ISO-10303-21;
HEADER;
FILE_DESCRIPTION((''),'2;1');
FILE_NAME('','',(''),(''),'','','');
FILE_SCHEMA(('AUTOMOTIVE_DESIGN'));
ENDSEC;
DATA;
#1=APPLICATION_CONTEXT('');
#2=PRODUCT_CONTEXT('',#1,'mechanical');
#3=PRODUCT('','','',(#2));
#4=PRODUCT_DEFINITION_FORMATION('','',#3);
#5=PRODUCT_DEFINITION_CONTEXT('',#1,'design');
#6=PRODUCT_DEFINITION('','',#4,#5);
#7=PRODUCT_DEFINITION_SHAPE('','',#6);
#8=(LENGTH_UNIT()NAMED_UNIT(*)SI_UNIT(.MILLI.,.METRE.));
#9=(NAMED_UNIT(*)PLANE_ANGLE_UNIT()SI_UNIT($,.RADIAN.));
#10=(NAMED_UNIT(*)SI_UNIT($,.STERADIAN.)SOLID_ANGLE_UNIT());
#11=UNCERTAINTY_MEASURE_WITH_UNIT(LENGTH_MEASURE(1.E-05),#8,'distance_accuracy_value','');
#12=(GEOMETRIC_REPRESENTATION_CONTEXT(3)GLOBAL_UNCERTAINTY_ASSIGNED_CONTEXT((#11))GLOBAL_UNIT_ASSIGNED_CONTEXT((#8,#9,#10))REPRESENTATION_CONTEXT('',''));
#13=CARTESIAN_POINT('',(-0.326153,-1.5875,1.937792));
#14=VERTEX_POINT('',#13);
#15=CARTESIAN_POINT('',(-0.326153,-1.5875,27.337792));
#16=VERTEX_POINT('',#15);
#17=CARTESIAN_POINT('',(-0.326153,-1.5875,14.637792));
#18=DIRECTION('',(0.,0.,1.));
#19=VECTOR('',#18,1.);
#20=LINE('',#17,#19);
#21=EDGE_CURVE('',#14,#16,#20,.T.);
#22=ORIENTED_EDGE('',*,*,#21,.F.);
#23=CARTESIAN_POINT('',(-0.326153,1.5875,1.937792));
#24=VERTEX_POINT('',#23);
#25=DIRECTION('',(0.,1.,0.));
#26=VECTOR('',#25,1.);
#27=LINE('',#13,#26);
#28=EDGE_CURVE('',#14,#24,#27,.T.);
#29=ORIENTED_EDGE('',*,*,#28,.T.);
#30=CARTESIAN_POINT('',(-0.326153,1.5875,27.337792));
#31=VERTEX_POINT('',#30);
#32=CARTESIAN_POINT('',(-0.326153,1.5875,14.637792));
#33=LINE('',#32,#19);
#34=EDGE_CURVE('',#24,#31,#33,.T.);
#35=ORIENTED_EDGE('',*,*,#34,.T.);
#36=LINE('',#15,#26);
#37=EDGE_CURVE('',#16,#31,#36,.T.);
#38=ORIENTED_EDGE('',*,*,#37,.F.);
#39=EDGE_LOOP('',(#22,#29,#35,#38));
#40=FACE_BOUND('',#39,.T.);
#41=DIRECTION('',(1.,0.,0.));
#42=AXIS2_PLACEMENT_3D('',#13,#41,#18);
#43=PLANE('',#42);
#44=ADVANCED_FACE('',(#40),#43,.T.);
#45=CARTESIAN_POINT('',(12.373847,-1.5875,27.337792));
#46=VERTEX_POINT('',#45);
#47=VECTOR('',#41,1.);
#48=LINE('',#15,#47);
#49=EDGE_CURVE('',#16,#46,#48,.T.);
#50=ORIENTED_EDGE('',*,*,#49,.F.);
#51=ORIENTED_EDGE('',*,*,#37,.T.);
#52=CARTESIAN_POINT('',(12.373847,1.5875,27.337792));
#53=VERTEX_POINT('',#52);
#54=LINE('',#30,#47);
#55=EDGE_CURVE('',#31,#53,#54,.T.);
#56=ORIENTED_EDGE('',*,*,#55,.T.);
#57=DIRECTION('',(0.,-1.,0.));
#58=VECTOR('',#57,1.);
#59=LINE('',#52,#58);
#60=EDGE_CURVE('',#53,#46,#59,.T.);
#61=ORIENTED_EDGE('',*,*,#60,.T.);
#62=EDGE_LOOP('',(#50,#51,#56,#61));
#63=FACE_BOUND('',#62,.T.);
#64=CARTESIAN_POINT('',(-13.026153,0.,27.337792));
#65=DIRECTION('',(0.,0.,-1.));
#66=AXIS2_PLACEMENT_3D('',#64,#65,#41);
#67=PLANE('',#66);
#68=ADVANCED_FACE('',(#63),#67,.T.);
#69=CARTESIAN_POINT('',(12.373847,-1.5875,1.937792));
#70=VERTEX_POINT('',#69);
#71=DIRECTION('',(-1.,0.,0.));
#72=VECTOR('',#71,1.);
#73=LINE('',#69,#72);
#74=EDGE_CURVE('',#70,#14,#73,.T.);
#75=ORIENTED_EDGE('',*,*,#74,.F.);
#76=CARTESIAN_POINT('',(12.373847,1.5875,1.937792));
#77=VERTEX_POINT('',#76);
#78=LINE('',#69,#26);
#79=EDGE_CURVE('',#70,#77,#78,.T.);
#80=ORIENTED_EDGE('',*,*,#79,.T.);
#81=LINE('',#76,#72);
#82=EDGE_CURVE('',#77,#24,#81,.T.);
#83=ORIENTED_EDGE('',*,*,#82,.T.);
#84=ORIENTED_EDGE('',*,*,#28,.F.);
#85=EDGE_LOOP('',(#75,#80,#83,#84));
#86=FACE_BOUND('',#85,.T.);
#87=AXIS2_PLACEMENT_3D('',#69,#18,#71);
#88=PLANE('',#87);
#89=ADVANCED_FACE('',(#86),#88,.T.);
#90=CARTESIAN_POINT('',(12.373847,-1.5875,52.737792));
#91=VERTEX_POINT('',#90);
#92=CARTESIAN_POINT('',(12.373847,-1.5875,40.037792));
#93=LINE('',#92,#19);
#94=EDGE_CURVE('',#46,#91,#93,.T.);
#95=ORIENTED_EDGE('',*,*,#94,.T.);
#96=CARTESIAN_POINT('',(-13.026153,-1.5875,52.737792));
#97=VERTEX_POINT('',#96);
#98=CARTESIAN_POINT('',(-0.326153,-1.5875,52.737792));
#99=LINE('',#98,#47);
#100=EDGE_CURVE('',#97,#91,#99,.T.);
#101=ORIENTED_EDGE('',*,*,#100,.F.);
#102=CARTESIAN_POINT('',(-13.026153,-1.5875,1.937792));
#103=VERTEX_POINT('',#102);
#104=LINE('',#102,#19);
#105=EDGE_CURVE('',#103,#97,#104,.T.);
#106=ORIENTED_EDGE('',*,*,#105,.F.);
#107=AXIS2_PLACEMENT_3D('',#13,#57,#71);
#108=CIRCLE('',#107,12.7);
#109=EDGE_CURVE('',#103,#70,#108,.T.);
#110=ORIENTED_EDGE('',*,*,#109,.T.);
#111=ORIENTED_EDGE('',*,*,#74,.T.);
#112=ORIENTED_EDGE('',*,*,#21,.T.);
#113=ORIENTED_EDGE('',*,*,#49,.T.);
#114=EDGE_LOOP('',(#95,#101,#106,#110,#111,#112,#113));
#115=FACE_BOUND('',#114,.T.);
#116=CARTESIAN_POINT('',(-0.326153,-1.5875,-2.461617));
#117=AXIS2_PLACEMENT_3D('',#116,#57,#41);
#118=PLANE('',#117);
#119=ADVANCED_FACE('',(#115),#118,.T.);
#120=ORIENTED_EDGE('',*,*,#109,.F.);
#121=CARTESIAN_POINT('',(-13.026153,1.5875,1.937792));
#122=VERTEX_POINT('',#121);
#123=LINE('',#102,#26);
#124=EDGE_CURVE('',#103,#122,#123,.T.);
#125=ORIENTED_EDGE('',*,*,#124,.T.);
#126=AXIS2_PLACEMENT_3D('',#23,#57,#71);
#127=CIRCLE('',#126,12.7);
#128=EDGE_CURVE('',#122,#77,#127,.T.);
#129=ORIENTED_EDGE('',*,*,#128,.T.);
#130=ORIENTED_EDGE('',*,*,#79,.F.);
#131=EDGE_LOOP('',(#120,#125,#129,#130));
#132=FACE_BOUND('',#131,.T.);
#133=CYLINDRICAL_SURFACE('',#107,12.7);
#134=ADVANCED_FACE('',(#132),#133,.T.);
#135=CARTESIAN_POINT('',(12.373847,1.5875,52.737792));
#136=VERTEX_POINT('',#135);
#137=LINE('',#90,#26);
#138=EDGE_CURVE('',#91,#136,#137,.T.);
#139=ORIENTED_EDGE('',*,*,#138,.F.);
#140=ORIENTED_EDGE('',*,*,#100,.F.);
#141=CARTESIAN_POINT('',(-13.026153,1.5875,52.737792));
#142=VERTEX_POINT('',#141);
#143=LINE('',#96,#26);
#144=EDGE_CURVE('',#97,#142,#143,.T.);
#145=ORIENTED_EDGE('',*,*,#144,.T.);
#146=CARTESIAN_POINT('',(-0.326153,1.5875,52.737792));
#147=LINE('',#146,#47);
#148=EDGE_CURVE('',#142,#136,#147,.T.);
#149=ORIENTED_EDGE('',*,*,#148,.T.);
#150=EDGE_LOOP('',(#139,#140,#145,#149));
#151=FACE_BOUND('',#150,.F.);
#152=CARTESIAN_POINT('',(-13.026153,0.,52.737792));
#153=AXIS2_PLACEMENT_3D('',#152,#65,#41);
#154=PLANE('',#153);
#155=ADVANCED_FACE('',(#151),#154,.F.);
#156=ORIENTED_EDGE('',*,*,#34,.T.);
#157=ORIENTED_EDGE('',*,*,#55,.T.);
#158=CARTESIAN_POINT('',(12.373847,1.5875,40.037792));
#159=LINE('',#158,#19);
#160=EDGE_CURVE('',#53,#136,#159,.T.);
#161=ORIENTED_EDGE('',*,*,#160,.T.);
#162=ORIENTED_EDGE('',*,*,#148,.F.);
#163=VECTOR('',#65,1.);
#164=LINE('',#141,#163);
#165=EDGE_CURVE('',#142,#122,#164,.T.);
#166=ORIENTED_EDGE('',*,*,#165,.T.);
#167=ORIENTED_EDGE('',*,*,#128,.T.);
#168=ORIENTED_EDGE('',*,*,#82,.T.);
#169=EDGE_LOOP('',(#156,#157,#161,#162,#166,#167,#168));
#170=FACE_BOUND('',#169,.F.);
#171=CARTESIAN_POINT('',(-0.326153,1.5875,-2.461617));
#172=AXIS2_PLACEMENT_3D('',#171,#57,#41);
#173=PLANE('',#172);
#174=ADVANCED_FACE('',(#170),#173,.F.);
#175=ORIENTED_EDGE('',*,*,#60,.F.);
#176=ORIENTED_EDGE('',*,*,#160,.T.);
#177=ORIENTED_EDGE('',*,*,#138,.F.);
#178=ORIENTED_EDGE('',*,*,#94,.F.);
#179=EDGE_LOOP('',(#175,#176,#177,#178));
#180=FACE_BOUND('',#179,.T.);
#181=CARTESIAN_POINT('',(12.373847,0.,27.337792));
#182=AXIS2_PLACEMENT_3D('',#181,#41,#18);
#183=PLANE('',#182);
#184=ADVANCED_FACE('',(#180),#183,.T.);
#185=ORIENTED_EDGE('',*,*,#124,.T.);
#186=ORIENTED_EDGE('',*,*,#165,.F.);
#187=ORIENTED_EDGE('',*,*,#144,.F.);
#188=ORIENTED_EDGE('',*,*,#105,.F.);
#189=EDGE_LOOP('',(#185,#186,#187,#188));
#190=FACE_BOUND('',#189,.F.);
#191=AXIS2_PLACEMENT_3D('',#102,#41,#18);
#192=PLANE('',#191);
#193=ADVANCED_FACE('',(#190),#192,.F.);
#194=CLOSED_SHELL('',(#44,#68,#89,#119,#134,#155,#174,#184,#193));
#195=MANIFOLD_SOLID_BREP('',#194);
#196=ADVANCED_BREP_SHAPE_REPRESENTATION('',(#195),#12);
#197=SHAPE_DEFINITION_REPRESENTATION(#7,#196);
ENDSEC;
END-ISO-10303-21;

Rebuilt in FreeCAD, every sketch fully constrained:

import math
import FreeCAD as App
import Part
import Sketcher
Q = App.Units.Quantity


def add_polygon(sketch, points):
    """Adds a closed chain of lines whose ends are joined by coincident constraints."""
    first, n = sketch.GeometryCount, len(points)
    for a, b in zip(points, points[1:] + points[:1]):
        sketch.addGeometry(Part.LineSegment(App.Vector(*a, 0), App.Vector(*b, 0)), False)
    for i in range(n):
        sketch.addConstraint(Sketcher.Constraint("Coincident", first + i, 2, first + (i + 1) % n, 1))

doc = App.newDocument("Part")
params = doc.addObject("Spreadsheet::Sheet", "Params")
for row, (alias, value) in enumerate([
    ("sketch1_width", "1 in"),
    ("pad1_length", "0.125 in"),
    ("sketch2_height", "1 in"),
    ("sketch2_width", "0.5 in"),
    ("pad2_length", "0.125 in"),
    ("sketch3_radius", "0.5 in"),
    ("pad3_length", "0.125 in"),
], start=1):
    params.set(f"A{row}", alias)
    params.set(f"B{row}", "=" + value)
    params.setAlias(f"B{row}", alias)

body = doc.addObject("PartDesign::Body", "Body")

sketch1 = doc.addObject("Sketcher::SketchObject", "Sketch")
body.addObject(sketch1)
sketch1.AttachmentSupport = (doc.XZ_Plane, [""])
sketch1.MapMode = "FlatFace"
add_polygon(sketch1, [(-13, 53), (-13, 27), (12, 27), (12, 53)])
sketch1.addConstraint([
    Sketcher.Constraint("Vertical", 0),
    Sketcher.Constraint("Horizontal", 1),
    Sketcher.Constraint("Vertical", 2),
    Sketcher.Constraint("Horizontal", 3),
    Sketcher.Constraint("Equal", 3, 0),
    Sketcher.Constraint("DistanceX", 1, 1, 1, 2, Q("1 in")),
    Sketcher.Constraint("DistanceX", 0, 2, -1, 1, 13.026153),
    Sketcher.Constraint("DistanceY", -1, 1, 0, 2, 27.337792),
])
sketch1.setExpression("Constraints[9]", "Params.sketch1_width")
pad1 = doc.addObject("PartDesign::Pad", "Pad")
body.addObject(pad1)
pad1.Profile = sketch1
pad1.setExpression("Length", "Params.pad1_length")
pad1.Midplane = True

sketch2 = doc.addObject("Sketcher::SketchObject", "Sketch001")
body.addObject(sketch2)
sketch2.AttachmentSupport = (doc.XZ_Plane, [""])
sketch2.MapMode = "FlatFace"
sketch2.AttachmentOffset = App.Placement(App.Vector(0, 0, 0.0625 * 25.4), App.Rotation())
add_polygon(sketch2, [(-13, 27), (-13, 2), (0, 2), (0, 27)])
sketch2.addConstraint([
    Sketcher.Constraint("Vertical", 0),
    Sketcher.Constraint("Horizontal", 1),
    Sketcher.Constraint("Vertical", 2),
    Sketcher.Constraint("Horizontal", 3),
    Sketcher.Constraint("DistanceY", 0, 2, 0, 1, Q("1 in")),
    Sketcher.Constraint("DistanceX", 1, 1, 1, 2, Q("0.5 in")),
    Sketcher.Constraint("DistanceX", 0, 2, -1, 1, 13.026153),
    Sketcher.Constraint("DistanceY", -1, 1, 0, 2, 1.937792),
])
sketch2.setExpression("Constraints[8]", "Params.sketch2_height")
sketch2.setExpression("Constraints[9]", "Params.sketch2_width")
pad2 = doc.addObject("PartDesign::Pad", "Pad001")
body.addObject(pad2)
pad2.Profile = sketch2
pad2.setExpression("Length", "Params.pad2_length")
pad2.Reversed = True

sketch3 = doc.addObject("Sketcher::SketchObject", "Sketch002")
body.addObject(sketch3)
sketch3.AttachmentSupport = (doc.XZ_Plane, [""])
sketch3.MapMode = "FlatFace"
sketch3.AttachmentOffset = App.Placement(App.Vector(0, 0, 0.0625 * 25.4), App.Rotation())
sketch3.addGeometry([
    Part.LineSegment(App.Vector(12, 2, 0), App.Vector(-13, 2, 0)),
    Part.ArcOfCircle(Part.Circle(App.Vector(0, 2, 0), App.Vector(0, 0, 1), 13), math.radians(180), math.radians(360)),
], False)
sketch3.addConstraint([
    Sketcher.Constraint("Coincident", 0, 1, 1, 2),
    Sketcher.Constraint("Coincident", 1, 1, 0, 2),
    Sketcher.Constraint("Horizontal", 0),
    Sketcher.Constraint("Horizontal", 1, 3, 0, 1),
    Sketcher.Constraint("Radius", 1, Q("0.5 in")),
    Sketcher.Constraint("DistanceX", 1, 3, -1, 1, 0.326153),
    Sketcher.Constraint("DistanceY", -1, 1, 1, 3, 1.937792),
])
sketch3.setExpression("Constraints[4]", "Params.sketch3_radius")
pad3 = doc.addObject("PartDesign::Pad", "Pad002")
body.addObject(pad3)
pad3.Profile = sketch3
pad3.setExpression("Length", "Params.pad3_length")
pad3.Reversed = True

doc.recompute()
